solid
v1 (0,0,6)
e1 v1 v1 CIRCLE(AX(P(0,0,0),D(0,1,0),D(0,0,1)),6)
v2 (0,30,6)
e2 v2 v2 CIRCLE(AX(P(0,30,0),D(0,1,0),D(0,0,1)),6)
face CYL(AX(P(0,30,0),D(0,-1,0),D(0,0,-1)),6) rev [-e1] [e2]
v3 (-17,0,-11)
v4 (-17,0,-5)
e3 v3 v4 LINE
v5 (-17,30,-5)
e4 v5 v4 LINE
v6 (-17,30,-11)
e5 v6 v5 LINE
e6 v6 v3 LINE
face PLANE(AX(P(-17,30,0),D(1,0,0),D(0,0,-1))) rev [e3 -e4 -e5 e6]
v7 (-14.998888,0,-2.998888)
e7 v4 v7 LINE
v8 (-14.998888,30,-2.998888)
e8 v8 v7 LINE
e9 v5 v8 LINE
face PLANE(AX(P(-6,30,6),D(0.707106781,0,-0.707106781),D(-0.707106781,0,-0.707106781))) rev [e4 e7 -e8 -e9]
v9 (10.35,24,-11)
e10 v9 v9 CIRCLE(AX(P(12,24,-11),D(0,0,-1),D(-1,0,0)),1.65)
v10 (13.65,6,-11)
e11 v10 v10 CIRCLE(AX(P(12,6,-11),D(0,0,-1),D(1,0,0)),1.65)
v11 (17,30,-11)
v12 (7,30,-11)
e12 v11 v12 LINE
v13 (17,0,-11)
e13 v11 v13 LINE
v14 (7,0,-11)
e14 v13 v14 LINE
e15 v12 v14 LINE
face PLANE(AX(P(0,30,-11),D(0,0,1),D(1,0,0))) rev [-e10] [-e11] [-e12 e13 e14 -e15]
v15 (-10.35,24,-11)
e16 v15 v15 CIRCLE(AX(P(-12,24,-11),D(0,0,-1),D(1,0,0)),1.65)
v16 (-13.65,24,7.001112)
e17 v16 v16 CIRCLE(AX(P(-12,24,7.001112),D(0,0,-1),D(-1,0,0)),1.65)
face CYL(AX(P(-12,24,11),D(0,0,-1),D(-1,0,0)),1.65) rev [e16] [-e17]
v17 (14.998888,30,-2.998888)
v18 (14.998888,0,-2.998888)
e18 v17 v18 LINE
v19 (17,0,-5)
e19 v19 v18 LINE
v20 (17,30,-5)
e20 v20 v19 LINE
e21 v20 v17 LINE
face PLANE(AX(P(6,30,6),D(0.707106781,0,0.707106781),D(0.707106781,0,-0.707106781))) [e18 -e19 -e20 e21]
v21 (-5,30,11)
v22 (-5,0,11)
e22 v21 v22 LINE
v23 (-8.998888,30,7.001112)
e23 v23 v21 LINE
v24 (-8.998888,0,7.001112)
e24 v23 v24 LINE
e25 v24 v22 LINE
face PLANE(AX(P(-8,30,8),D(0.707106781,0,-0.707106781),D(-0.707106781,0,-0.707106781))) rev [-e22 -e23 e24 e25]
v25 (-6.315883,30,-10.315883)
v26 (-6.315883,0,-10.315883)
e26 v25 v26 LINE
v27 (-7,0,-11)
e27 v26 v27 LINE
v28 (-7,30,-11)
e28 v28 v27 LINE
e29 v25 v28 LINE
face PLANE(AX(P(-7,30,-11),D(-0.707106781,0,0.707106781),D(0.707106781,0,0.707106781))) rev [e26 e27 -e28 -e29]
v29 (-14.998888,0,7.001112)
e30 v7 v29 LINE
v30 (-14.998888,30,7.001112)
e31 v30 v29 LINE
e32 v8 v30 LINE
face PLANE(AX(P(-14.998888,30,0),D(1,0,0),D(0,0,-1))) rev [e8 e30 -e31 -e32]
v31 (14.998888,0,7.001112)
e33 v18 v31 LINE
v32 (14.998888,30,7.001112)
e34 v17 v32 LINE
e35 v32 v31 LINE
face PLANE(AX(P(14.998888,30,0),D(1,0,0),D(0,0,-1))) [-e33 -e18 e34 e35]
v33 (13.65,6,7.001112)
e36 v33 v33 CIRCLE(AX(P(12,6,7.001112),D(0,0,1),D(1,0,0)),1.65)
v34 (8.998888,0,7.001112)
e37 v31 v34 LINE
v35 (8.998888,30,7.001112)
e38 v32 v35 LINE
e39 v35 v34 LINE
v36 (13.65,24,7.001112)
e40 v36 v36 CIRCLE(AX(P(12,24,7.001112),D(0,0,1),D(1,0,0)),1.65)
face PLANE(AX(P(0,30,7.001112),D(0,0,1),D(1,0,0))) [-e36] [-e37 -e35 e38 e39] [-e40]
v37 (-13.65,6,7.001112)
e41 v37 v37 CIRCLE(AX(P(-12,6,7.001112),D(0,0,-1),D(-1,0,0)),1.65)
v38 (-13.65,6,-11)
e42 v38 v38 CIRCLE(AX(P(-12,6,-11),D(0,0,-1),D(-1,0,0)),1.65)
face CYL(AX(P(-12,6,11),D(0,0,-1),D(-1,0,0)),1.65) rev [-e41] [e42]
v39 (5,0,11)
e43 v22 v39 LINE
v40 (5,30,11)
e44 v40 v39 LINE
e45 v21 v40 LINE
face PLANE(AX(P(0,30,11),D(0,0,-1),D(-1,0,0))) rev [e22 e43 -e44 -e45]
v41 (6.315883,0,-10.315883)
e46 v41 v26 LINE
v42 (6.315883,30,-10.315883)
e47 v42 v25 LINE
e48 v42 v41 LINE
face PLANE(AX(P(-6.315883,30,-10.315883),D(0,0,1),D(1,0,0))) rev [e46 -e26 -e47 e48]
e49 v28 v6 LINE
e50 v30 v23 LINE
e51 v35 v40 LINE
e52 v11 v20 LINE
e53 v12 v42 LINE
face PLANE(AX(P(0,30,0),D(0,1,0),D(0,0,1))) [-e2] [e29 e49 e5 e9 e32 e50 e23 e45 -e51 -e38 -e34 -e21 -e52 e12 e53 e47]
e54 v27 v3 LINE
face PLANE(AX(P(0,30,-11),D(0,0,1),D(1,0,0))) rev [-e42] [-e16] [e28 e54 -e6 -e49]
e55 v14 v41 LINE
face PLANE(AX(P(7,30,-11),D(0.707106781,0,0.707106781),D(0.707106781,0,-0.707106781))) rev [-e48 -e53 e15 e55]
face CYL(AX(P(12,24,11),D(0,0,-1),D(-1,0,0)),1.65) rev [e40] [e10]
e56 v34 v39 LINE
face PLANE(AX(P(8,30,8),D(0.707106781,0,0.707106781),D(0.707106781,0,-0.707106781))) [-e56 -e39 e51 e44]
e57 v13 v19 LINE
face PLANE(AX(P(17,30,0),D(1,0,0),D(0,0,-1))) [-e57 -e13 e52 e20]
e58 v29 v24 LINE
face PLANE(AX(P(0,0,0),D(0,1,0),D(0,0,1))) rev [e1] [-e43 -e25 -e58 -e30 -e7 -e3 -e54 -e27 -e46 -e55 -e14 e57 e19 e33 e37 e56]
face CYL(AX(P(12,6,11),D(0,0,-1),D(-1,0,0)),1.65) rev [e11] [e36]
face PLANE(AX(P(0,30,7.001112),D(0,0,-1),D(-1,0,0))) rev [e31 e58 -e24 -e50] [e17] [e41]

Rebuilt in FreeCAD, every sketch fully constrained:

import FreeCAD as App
import Part
import Sketcher

V = App.Vector

doc = App.newDocument("Part")
body = doc.addObject("PartDesign::Body", "Body")

sketch1 = body.newObject("Sketcher::SketchObject", "Sketch")
sketch1.AttachmentSupport = (doc.getObject("XZ_Plane"), [""])
sketch1.MapMode = "FlatFace"
sketch1.addGeometry([
    Part.LineSegment(V(17, -5, 0), V(17, -11, 0)),
    Part.LineSegment(V(17, -11, 0), V(-17, -11, 0)),
    Part.LineSegment(V(-17, -11, 0), V(-17, -5, 0)),
    Part.LineSegment(V(-17, -5, 0), V(-15, -3, 0)),
    Part.LineSegment(V(-15, -3, 0), V(-15, 7, 0)),
    Part.LineSegment(V(-15, 7, 0), V(-9, 7, 0)),
    Part.LineSegment(V(-9, 7, 0), V(-5, 11, 0)),
    Part.LineSegment(V(-5, 11, 0), V(5, 11, 0)),
    Part.LineSegment(V(5, 11, 0), V(9, 7, 0)),
    Part.LineSegment(V(9, 7, 0), V(15, 7, 0)),
    Part.LineSegment(V(15, 7, 0), V(15, -3, 0)),
    Part.LineSegment(V(15, -3, 0), V(17, -5, 0)),
    Part.Circle(V(0, 0, 0), V(0, 0, 1), 6),
], False)
sketch1.addConstraint([
    Sketcher.Constraint("Coincident", 0, 2, 1, 1),
    Sketcher.Constraint("Coincident", 1, 2, 2, 1),
    Sketcher.Constraint("Coincident", 2, 2, 3, 1),
    Sketcher.Constraint("Coincident", 3, 2, 4, 1),
    Sketcher.Constraint("Coincident", 4, 2, 5, 1),
    Sketcher.Constraint("Coincident", 5, 2, 6, 1),
    Sketcher.Constraint("Coincident", 6, 2, 7, 1),
    Sketcher.Constraint("Coincident", 7, 2, 8, 1),
    Sketcher.Constraint("Coincident", 8, 2, 9, 1),
    Sketcher.Constraint("Coincident", 9, 2, 10, 1),
    Sketcher.Constraint("Coincident", 10, 2, 11, 1),
    Sketcher.Constraint("Coincident", 11, 2, 0, 1),
    Sketcher.Constraint("Vertical", 0),
    Sketcher.Constraint("Horizontal", 1),
    Sketcher.Constraint("Vertical", 2),
    Sketcher.Constraint("Vertical", 4),
    Sketcher.Constraint("Horizontal", 5),
    Sketcher.Constraint("Horizontal", 7),
    Sketcher.Constraint("Horizontal", 9),
    Sketcher.Constraint("Vertical", 10),
    Sketcher.Constraint("Coincident", 12, 3, -1, 1),
    Sketcher.Constraint("Symmetric", 5, 2, 8, 2, -2),
    Sketcher.Constraint("Symmetric", 3, 2, 10, 2, -2),
    Sketcher.Constraint("Symmetric", 2, 2, 11, 2, -2),
    Sketcher.Constraint("Parallel", 3, 6),
    Sketcher.Constraint("Perpendicular", 6, 8),
    Sketcher.Constraint("Parallel", 8, 11),
    Sketcher.Constraint("Equal", 9, 0),
    Sketcher.Constraint("Equal", 7, 4),
    Sketcher.Constraint("Diameter", 12, 12.0),
    Sketcher.Constraint("DistanceX", 1, 2, 1, 1, 34.0),
    Sketcher.Constraint("DistanceX", 5, 1, 5, 2, 6.0),
    Sketcher.Constraint("DistanceX", 7, 1, 7, 2, 10.0),
    Sketcher.Constraint("DistanceY", 0, 2, -1, 1, 11.0),
    Sketcher.Constraint("Distance", 3, 2.83),
])
pad1 = body.newObject("PartDesign::Pad", "Pad")
pad1.Profile = sketch1
pad1.Length = 30
pad1.Reversed = True

sketch2 = body.newObject("Sketcher::SketchObject", "Sketch001")
sketch2.AttachmentSupport = (doc.getObject("XY_Plane"), [""])
sketch2.MapMode = "FlatFace"
sketch2.AttachmentOffset = App.Placement(V(0, 0, -11), App.Rotation())
sketch2.addGeometry([
    Part.Circle(V(-12, 6, 0), V(0, 0, 1), 1.6),
    Part.Circle(V(12, 6, 0), V(0, 0, 1), 1.6),
    Part.Circle(V(-12, 24, 0), V(0, 0, 1), 1.6),
    Part.Circle(V(12, 24, 0), V(0, 0, 1), 1.6),
], False)
sketch2.addConstraint([
    Sketcher.Constraint("Equal", 0, 1),
    Sketcher.Constraint("Equal", 1, 2),
    Sketcher.Constraint("Equal", 2, 3),
    Sketcher.Constraint("Symmetric", 0, 3, 1, 3, -2),
    Sketcher.Constraint("Symmetric", 2, 3, 3, 3, -2),
    Sketcher.Constraint("Vertical", 0, 3, 2, 3),
    Sketcher.Constraint("Diameter", 0, 3.3),
    Sketcher.Constraint("DistanceX", 0, 3, -1, 1, 12.0),
    Sketcher.Constraint("DistanceY", -1, 1, 0, 3, 6.0),
    Sketcher.Constraint("DistanceY", -1, 1, 2, 3, 24.0),
])
pocket1 = body.newObject("PartDesign::Pocket", "Pocket")
pocket1.Profile = sketch2
pocket1.Type = "ThroughAll"
pocket1.Reversed = True

sketch3 = body.newObject("Sketcher::SketchObject", "Sketch002")
sketch3.AttachmentSupport = (doc.getObject("XZ_Plane"), [""])
sketch3.MapMode = "FlatFace"
sketch3.addGeometry([
    Part.LineSegment(V(6.3, -10.3, 0), V(-6.3, -10.3, 0)),
    Part.LineSegment(V(-6.3, -10.3, 0), V(-7, -11, 0)),
    Part.LineSegment(V(-7, -11, 0), V(7, -11, 0)),
    Part.LineSegment(V(7, -11, 0), V(6.3, -10.3, 0)),
], False)
sketch3.addConstraint([
    Sketcher.Constraint("Coincident", 0, 2, 1, 1),
    Sketcher.Constraint("Coincident", 1, 2, 2, 1),
    Sketcher.Constraint("Coincident", 2, 2, 3, 1),
    Sketcher.Constraint("Coincident", 3, 2, 0, 1),
    Sketcher.Constraint("Horizontal", 0),
    Sketcher.Constraint("Horizontal", 2),
    Sketcher.Constraint("Perpendicular", 1, 3),
    Sketcher.Constraint("Equal", 1, 3),
    Sketcher.Constraint("DistanceX", 2, 1, 2, 2, 14.0),
    Sketcher.Constraint("DistanceX", 1, 2, -1, 1, 7.0),
    Sketcher.Constraint("DistanceY", 1, 2, -1, 1, 11.0),
    Sketcher.Constraint("DistanceX", 0, 2, 0, 1, 12.631766),
])
pocket2 = body.newObject("PartDesign::Pocket", "Pocket001")
pocket2.Profile = sketch3
pocket2.Type = "ThroughAll"

doc.recompute()
